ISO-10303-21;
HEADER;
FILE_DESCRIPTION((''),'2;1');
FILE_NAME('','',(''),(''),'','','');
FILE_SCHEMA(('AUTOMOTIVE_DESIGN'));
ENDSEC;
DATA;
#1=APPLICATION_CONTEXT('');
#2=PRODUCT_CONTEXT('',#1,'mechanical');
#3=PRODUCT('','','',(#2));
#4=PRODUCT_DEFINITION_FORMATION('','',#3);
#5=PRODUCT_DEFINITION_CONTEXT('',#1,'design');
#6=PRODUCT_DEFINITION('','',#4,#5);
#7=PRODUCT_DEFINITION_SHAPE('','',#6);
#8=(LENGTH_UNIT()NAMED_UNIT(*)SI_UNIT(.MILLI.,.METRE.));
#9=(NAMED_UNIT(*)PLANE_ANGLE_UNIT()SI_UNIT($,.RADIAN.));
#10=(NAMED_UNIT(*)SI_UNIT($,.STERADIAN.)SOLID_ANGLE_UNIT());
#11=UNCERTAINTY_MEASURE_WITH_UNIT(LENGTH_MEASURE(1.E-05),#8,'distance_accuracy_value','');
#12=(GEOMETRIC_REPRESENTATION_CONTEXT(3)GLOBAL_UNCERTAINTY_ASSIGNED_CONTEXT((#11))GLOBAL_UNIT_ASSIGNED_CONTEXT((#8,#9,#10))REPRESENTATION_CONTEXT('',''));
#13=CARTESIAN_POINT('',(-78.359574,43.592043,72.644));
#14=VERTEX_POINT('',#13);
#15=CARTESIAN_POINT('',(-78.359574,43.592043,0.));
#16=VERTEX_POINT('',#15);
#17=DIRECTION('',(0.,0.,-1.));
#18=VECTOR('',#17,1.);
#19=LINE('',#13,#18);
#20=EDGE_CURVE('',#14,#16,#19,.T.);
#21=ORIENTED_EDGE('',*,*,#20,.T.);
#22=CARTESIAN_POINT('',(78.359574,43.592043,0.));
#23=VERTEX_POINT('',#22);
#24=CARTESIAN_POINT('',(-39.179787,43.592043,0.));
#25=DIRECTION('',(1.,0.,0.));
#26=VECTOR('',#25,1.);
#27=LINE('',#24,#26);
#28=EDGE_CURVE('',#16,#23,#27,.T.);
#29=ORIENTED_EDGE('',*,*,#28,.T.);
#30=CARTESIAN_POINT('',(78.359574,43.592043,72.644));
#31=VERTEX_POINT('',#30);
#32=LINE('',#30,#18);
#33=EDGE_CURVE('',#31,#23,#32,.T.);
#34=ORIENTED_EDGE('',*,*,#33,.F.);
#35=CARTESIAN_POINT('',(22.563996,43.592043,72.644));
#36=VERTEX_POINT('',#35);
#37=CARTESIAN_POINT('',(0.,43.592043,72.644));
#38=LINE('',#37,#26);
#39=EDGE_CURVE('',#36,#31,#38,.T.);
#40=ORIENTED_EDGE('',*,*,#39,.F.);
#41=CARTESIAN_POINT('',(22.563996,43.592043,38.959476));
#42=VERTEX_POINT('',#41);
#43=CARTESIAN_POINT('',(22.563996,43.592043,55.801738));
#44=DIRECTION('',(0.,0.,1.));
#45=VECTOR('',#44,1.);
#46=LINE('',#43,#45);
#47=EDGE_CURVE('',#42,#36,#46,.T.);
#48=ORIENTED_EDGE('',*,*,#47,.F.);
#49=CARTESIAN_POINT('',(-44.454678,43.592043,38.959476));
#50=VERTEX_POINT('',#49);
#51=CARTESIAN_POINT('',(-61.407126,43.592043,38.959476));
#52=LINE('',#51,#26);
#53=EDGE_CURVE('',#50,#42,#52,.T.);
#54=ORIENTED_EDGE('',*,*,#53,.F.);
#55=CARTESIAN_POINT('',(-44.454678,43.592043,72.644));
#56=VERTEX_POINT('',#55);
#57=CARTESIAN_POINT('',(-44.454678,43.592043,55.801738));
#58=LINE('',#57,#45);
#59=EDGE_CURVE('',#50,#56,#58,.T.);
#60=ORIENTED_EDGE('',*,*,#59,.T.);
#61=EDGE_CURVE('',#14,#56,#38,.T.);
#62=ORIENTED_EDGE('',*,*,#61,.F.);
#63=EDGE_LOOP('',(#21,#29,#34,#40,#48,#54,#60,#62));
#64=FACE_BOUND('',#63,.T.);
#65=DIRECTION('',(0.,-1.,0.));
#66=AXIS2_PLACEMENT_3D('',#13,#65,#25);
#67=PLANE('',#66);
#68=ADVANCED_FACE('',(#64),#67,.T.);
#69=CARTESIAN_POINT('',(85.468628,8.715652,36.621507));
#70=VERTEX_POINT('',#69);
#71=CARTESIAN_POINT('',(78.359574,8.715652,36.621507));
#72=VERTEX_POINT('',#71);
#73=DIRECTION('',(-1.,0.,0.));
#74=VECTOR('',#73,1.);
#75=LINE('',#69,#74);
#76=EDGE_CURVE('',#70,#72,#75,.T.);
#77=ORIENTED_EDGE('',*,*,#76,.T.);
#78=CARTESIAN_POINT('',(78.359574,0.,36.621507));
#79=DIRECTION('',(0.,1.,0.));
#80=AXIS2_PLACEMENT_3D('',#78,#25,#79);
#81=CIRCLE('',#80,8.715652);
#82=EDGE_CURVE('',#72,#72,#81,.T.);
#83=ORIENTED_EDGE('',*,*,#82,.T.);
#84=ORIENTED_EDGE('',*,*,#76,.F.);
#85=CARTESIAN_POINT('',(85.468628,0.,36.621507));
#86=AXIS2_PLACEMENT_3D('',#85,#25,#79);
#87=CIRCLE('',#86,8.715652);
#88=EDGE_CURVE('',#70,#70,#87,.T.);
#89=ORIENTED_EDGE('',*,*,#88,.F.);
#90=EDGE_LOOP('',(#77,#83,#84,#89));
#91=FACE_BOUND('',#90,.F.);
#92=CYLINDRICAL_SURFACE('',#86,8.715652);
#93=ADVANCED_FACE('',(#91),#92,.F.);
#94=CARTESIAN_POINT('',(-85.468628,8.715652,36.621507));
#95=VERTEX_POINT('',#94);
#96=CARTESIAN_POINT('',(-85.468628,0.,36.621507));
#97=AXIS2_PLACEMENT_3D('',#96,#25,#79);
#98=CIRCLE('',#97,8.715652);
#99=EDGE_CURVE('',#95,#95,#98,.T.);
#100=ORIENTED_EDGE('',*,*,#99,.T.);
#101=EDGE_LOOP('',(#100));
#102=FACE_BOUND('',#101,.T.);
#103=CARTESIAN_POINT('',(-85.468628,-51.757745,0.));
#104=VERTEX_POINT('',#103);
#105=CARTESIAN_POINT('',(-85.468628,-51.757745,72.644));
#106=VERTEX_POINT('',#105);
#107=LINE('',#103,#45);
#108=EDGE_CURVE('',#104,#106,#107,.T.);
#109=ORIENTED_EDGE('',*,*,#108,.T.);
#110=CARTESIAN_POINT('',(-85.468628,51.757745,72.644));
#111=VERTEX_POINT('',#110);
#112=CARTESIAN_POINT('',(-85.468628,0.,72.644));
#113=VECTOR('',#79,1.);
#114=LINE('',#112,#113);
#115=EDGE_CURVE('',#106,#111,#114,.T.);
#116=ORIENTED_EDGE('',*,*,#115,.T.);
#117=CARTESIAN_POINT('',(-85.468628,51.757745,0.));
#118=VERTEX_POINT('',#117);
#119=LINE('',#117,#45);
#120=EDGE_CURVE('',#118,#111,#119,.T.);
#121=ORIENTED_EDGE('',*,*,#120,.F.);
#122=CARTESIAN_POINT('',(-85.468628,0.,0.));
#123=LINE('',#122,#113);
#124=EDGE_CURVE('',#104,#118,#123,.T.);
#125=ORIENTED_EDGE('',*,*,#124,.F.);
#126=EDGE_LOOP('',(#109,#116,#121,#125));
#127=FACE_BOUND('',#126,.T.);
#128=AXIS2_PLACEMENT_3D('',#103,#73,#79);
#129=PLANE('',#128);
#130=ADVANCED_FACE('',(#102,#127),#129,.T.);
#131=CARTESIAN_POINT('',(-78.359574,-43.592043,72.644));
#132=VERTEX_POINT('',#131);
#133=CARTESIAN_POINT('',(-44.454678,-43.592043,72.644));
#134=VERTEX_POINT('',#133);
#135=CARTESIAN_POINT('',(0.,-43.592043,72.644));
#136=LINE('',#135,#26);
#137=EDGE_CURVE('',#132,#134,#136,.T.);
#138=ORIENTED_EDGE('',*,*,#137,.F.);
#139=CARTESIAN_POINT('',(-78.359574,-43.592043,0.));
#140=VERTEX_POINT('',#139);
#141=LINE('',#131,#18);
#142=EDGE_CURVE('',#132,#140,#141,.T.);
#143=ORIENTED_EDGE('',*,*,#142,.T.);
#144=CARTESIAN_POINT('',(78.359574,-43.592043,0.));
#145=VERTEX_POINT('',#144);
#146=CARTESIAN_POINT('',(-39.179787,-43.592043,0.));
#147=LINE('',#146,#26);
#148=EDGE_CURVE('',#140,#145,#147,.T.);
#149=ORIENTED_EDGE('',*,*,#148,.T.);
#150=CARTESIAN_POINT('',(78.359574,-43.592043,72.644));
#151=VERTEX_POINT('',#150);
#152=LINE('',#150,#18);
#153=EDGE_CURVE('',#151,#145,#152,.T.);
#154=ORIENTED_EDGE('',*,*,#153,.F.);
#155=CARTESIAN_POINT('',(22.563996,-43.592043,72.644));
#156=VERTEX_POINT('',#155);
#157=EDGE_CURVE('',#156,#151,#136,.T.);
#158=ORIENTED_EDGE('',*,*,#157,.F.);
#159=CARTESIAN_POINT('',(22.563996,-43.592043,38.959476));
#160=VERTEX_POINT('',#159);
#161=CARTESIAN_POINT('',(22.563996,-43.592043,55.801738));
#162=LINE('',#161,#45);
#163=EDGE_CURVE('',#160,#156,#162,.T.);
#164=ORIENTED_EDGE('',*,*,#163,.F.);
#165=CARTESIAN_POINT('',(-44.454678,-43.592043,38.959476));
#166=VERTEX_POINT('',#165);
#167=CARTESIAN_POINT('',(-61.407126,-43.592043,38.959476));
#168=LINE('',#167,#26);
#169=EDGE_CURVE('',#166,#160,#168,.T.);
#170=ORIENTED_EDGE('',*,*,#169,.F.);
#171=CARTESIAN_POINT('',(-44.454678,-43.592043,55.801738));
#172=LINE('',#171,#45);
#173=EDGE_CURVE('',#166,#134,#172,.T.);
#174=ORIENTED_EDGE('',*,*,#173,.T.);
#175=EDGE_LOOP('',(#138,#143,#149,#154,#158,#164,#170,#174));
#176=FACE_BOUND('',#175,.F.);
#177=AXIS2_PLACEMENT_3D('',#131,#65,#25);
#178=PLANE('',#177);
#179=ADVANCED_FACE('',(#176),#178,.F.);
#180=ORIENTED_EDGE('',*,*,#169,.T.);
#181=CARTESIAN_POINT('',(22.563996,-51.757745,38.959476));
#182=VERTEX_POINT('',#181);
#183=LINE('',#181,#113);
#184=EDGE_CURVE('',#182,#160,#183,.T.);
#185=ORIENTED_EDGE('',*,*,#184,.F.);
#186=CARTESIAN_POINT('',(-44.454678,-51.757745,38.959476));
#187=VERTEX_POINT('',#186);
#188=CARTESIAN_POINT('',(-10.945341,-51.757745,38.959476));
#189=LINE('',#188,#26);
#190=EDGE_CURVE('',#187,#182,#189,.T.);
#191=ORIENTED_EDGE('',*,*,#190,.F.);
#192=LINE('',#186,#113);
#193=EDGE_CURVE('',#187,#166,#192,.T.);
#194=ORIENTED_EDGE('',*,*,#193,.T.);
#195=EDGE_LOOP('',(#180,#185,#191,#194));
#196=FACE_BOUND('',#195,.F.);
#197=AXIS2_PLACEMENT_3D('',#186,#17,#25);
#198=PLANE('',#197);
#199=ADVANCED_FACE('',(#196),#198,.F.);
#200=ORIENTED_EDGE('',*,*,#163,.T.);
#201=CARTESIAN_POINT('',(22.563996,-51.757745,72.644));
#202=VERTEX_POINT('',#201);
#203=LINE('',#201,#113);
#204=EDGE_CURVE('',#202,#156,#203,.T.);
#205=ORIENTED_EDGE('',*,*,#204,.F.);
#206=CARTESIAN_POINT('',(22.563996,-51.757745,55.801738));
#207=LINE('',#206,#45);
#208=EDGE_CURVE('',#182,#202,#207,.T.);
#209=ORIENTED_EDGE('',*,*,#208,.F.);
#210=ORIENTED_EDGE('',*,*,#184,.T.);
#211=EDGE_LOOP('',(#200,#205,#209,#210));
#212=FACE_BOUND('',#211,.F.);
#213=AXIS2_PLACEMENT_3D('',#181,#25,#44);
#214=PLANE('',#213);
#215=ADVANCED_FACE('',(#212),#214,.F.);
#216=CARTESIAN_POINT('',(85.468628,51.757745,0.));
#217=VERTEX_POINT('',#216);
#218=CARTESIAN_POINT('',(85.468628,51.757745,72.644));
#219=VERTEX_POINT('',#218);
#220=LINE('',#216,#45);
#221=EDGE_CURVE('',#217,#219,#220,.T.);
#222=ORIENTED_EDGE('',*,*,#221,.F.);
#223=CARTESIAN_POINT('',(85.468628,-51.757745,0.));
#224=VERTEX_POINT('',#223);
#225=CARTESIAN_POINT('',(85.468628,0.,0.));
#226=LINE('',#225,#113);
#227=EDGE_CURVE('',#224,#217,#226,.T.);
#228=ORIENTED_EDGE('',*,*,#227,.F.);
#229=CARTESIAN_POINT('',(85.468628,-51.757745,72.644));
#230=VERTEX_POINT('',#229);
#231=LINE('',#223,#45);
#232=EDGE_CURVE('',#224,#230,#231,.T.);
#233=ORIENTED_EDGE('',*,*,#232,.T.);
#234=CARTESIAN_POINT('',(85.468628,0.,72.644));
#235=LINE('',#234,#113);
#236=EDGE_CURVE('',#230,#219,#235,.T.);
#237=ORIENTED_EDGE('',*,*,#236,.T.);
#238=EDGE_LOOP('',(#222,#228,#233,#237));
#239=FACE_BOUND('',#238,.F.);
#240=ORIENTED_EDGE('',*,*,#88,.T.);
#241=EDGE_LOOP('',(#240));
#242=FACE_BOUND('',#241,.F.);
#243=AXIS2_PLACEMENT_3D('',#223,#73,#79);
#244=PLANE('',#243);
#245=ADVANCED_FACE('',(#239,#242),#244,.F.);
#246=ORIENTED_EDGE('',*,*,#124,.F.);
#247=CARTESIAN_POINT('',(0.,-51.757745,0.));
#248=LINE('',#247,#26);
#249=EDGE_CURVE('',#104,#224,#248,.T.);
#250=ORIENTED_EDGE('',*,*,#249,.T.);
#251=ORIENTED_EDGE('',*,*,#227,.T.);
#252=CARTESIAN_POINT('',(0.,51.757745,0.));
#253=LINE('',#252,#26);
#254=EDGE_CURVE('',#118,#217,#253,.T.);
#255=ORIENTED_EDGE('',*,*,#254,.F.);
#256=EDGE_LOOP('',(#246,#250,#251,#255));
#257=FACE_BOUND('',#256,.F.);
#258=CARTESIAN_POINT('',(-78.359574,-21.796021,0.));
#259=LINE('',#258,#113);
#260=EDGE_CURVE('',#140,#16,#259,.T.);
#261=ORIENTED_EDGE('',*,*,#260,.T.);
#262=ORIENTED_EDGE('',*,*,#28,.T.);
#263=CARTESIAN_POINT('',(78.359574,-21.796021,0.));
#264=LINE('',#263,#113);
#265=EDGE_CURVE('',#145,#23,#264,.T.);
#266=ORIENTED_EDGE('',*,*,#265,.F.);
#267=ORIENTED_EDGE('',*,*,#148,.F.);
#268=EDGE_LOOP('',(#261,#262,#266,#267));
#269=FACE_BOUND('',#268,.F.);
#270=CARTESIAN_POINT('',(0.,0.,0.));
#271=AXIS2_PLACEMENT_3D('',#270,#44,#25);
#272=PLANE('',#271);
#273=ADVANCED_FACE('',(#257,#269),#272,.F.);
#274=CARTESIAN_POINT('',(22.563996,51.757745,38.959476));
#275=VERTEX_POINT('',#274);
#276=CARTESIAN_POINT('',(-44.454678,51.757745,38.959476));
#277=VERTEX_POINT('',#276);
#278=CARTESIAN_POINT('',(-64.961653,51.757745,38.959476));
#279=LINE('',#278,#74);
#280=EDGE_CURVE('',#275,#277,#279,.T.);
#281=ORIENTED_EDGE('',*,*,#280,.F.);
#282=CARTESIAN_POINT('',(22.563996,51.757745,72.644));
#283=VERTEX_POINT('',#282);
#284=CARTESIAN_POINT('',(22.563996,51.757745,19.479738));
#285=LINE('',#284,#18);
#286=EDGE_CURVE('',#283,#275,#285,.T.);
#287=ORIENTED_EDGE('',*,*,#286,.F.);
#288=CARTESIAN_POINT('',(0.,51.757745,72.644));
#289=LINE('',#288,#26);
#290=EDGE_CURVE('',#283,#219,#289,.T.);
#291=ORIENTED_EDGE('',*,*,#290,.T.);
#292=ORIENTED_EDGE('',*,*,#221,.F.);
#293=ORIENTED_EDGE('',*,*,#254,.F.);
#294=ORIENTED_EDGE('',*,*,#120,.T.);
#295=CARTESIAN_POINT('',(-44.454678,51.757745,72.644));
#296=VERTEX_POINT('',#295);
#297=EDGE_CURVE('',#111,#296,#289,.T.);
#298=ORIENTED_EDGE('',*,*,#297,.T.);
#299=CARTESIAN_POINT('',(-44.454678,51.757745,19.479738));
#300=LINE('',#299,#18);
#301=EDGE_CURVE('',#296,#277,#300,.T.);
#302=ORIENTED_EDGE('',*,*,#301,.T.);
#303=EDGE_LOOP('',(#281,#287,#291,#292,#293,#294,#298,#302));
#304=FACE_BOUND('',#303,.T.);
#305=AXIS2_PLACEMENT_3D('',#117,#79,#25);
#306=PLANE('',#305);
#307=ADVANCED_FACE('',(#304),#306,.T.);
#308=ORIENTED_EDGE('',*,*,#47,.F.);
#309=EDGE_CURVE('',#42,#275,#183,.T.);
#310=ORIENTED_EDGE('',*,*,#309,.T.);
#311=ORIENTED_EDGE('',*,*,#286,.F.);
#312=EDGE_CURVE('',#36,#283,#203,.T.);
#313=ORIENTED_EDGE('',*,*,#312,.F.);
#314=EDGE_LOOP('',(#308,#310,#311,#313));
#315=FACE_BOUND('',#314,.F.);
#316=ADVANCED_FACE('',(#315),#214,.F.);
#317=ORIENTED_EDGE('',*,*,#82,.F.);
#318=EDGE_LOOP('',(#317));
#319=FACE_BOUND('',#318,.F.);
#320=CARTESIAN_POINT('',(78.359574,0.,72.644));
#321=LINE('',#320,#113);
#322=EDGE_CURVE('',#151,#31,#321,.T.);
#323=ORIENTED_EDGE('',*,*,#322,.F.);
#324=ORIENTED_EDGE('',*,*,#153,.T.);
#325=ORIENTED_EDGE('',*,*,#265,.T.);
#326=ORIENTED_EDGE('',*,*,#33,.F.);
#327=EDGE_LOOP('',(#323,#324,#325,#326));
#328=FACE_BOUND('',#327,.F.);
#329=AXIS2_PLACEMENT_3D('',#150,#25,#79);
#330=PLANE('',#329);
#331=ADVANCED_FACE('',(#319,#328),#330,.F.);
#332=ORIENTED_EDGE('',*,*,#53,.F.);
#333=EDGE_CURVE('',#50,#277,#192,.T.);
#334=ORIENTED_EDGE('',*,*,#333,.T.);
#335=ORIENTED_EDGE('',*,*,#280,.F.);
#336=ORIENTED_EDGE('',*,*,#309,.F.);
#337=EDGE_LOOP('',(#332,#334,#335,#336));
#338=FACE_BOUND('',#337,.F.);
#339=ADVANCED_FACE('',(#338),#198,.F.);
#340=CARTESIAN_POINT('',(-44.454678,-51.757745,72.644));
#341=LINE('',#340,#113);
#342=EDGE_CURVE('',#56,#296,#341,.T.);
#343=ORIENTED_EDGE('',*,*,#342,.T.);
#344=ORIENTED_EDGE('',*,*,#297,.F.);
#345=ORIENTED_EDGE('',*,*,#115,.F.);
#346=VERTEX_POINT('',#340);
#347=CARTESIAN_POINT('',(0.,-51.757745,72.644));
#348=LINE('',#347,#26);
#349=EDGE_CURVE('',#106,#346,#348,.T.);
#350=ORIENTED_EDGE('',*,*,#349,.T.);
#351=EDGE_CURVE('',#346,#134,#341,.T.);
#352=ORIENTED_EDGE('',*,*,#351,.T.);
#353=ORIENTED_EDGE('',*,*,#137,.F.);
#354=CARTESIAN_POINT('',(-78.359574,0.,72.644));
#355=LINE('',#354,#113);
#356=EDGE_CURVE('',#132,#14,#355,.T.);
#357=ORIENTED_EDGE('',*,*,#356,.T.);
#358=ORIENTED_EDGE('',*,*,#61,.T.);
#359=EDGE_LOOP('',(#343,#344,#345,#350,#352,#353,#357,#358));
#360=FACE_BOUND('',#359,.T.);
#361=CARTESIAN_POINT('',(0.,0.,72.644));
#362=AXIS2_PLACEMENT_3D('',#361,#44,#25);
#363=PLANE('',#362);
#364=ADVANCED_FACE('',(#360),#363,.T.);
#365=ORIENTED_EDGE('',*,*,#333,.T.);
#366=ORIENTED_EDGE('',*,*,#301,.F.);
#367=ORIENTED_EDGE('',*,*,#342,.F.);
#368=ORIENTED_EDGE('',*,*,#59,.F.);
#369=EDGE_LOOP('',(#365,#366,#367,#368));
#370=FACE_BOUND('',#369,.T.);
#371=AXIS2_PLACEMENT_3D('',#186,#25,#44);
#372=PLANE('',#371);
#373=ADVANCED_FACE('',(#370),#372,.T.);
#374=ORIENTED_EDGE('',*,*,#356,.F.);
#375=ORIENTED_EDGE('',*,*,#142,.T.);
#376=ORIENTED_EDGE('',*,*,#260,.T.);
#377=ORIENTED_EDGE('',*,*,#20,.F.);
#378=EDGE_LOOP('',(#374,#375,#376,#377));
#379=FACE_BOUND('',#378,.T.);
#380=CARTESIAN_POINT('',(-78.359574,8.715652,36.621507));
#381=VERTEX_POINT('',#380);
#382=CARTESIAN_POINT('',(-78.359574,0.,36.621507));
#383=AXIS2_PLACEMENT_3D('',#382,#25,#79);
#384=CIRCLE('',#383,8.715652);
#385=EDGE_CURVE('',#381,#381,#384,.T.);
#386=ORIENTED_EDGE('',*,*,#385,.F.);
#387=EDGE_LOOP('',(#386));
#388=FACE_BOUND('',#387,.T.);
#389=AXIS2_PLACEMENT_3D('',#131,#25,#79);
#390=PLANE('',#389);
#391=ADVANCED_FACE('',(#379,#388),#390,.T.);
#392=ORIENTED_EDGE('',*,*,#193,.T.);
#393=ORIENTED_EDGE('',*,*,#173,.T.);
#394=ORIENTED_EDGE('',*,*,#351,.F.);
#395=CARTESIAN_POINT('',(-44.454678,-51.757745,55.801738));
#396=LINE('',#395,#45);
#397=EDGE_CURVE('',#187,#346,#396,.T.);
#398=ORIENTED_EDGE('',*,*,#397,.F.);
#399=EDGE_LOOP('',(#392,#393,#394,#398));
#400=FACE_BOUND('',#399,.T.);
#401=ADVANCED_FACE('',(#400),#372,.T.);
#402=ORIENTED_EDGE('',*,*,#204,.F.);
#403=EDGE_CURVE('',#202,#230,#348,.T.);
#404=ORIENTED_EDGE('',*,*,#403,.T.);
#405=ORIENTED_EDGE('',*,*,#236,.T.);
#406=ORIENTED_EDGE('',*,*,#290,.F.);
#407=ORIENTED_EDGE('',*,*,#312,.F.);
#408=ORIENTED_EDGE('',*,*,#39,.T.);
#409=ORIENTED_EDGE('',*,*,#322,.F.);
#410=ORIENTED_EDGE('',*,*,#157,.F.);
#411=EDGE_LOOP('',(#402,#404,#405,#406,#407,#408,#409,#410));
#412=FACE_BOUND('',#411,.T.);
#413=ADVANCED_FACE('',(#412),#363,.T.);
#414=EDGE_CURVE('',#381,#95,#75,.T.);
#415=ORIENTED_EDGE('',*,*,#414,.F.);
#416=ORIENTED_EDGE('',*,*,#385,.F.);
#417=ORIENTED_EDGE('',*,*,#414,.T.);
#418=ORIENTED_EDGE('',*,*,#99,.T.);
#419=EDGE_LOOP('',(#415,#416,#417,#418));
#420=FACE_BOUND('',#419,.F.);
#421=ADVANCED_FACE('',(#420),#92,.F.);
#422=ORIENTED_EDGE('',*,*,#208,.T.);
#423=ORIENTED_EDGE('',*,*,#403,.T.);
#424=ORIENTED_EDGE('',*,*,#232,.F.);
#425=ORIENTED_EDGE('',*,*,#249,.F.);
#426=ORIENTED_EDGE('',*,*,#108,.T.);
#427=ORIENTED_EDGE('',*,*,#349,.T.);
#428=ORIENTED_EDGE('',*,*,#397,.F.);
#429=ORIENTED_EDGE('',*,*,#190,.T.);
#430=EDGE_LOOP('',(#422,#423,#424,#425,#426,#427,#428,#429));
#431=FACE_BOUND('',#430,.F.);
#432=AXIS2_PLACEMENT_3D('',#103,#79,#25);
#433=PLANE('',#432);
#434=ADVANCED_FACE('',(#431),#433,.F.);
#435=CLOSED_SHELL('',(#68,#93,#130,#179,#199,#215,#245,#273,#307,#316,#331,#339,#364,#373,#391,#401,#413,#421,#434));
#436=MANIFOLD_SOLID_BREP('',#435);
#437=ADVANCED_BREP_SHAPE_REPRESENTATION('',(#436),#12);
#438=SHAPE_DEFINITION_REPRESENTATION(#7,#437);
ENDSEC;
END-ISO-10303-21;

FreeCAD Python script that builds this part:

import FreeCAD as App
import Part
import Sketcher
Q = App.Units.Quantity


def add_polygon(sketch, points):
    """Adds a closed chain of lines whose ends are joined by coincident constraints."""
    first, n = sketch.GeometryCount, len(points)
    for a, b in zip(points, points[1:] + points[:1]):
        sketch.addGeometry(Part.LineSegment(App.Vector(*a, 0), App.Vector(*b, 0)), False)
    for i in range(n):
        sketch.addConstraint(Sketcher.Constraint("Coincident", first + i, 2, first + (i + 1) % n, 1))

doc = App.newDocument("Part")
body = doc.addObject("PartDesign::Body", "Body")

# Sketch on XY plane
sketch1 = body.newObject("Sketcher::SketchObject", "Sketch")
sketch1.AttachmentSupport = (doc.getObject("XY_Plane"), [""])
sketch1.MapMode = "FlatFace"
add_polygon(sketch1, [(-85, 52), (-85, -52), (85, -52), (85, 52)])  # lines 0-3
sketch1.addConstraint([
    Sketcher.Constraint("Vertical", 0),
    Sketcher.Constraint("Horizontal", 1),
    Sketcher.Constraint("Vertical", 2),
    Sketcher.Constraint("Horizontal", 3),
    Sketcher.Constraint("Symmetric", 0, 2, 2, 2, -1, 1),
    Sketcher.Constraint("DistanceY", 0, 2, 0, 1, 103.51549),
    Sketcher.Constraint("DistanceX", 1, 1, 1, 2, 170.937256),
])
pad1 = body.newObject("PartDesign::Pad", "Pad")
pad1.Profile = sketch1
pad1.Length = Q("2.86 in")

# Sketch on XY plane
sketch2 = body.newObject("Sketcher::SketchObject", "Sketch001")
sketch2.AttachmentSupport = (doc.getObject("XY_Plane"), [""])
sketch2.MapMode = "FlatFace"
sketch2.AttachmentOffset = App.Placement(App.Vector(0, 0, 2.86 * 25.4), App.Rotation())
add_polygon(sketch2, [(-78, 44), (-78, -44), (78, -44), (78, 44)])  # lines 0-3
sketch2.addConstraint([
    Sketcher.Constraint("Vertical", 0),
    Sketcher.Constraint("Horizontal", 1),
    Sketcher.Constraint("Vertical", 2),
    Sketcher.Constraint("Horizontal", 3),
    Sketcher.Constraint("Symmetric", 0, 2, 2, 2, -1, 1),
    Sketcher.Constraint("DistanceX", 1, 1, 1, 2, 156.719148),
    Sketcher.Constraint("DistanceY", 0, 2, 0, 1, 87.184086),
])
pocket1 = body.newObject("PartDesign::Pocket", "Pocket")
pocket1.Profile = sketch2
pocket1.Length = Q("6.75 in")

# Sketch on XZ plane
sketch3 = body.newObject("Sketcher::SketchObject", "Sketch002")
sketch3.AttachmentSupport = (doc.getObject("XZ_Plane"), [""])
sketch3.MapMode = "FlatFace"
sketch3.AttachmentOffset = App.Placement(App.Vector(0, 0, 51.757745), App.Rotation())
add_polygon(sketch3, [(-44, 73), (-44, 39), (23, 39), (23, 73)])  # lines 0-3
sketch3.addConstraint([
    Sketcher.Constraint("Vertical", 0),
    Sketcher.Constraint("Horizontal", 1),
    Sketcher.Constraint("Vertical", 2),
    Sketcher.Constraint("Horizontal", 3),
    Sketcher.Constraint("DistanceY", -1, 1, 2, 2, Q("2.86 in")),
    Sketcher.Constraint("DistanceX", 1, 1, 1, 2, 67.018675),
    Sketcher.Constraint("DistanceY", 0, 2, 0, 1, 33.684524),
    Sketcher.Constraint("DistanceX", 0, 2, -1, 1, 44.454678),
])
pocket2 = body.newObject("PartDesign::Pocket", "Pocket001")
pocket2.Profile = sketch3
pocket2.Length = Q("6.78 in")

# Sketch on YZ plane
sketch4 = body.newObject("Sketcher::SketchObject", "Sketch003")
sketch4.AttachmentSupport = (doc.getObject("YZ_Plane"), [""])
sketch4.MapMode = "FlatFace"
sketch4.AttachmentOffset = App.Placement(App.Vector(0, 0, 85.468628), App.Rotation())
sketch4.addGeometry(Part.Circle(App.Vector(0, 37, 0), App.Vector(0, 0, 1), 9), False)
sketch4.addConstraint([
    Sketcher.Constraint("PointOnObject", 0, 3, -2),
    Sketcher.Constraint("Diameter", 0, 17.431304),
    Sketcher.Constraint("DistanceY", -1, 1, 0, 3, 36.621507),
])
pocket3 = body.newObject("PartDesign::Pocket", "Pocket002")
pocket3.Profile = sketch4
pocket3.Length = Q("9.21 in")

doc.recompute()
